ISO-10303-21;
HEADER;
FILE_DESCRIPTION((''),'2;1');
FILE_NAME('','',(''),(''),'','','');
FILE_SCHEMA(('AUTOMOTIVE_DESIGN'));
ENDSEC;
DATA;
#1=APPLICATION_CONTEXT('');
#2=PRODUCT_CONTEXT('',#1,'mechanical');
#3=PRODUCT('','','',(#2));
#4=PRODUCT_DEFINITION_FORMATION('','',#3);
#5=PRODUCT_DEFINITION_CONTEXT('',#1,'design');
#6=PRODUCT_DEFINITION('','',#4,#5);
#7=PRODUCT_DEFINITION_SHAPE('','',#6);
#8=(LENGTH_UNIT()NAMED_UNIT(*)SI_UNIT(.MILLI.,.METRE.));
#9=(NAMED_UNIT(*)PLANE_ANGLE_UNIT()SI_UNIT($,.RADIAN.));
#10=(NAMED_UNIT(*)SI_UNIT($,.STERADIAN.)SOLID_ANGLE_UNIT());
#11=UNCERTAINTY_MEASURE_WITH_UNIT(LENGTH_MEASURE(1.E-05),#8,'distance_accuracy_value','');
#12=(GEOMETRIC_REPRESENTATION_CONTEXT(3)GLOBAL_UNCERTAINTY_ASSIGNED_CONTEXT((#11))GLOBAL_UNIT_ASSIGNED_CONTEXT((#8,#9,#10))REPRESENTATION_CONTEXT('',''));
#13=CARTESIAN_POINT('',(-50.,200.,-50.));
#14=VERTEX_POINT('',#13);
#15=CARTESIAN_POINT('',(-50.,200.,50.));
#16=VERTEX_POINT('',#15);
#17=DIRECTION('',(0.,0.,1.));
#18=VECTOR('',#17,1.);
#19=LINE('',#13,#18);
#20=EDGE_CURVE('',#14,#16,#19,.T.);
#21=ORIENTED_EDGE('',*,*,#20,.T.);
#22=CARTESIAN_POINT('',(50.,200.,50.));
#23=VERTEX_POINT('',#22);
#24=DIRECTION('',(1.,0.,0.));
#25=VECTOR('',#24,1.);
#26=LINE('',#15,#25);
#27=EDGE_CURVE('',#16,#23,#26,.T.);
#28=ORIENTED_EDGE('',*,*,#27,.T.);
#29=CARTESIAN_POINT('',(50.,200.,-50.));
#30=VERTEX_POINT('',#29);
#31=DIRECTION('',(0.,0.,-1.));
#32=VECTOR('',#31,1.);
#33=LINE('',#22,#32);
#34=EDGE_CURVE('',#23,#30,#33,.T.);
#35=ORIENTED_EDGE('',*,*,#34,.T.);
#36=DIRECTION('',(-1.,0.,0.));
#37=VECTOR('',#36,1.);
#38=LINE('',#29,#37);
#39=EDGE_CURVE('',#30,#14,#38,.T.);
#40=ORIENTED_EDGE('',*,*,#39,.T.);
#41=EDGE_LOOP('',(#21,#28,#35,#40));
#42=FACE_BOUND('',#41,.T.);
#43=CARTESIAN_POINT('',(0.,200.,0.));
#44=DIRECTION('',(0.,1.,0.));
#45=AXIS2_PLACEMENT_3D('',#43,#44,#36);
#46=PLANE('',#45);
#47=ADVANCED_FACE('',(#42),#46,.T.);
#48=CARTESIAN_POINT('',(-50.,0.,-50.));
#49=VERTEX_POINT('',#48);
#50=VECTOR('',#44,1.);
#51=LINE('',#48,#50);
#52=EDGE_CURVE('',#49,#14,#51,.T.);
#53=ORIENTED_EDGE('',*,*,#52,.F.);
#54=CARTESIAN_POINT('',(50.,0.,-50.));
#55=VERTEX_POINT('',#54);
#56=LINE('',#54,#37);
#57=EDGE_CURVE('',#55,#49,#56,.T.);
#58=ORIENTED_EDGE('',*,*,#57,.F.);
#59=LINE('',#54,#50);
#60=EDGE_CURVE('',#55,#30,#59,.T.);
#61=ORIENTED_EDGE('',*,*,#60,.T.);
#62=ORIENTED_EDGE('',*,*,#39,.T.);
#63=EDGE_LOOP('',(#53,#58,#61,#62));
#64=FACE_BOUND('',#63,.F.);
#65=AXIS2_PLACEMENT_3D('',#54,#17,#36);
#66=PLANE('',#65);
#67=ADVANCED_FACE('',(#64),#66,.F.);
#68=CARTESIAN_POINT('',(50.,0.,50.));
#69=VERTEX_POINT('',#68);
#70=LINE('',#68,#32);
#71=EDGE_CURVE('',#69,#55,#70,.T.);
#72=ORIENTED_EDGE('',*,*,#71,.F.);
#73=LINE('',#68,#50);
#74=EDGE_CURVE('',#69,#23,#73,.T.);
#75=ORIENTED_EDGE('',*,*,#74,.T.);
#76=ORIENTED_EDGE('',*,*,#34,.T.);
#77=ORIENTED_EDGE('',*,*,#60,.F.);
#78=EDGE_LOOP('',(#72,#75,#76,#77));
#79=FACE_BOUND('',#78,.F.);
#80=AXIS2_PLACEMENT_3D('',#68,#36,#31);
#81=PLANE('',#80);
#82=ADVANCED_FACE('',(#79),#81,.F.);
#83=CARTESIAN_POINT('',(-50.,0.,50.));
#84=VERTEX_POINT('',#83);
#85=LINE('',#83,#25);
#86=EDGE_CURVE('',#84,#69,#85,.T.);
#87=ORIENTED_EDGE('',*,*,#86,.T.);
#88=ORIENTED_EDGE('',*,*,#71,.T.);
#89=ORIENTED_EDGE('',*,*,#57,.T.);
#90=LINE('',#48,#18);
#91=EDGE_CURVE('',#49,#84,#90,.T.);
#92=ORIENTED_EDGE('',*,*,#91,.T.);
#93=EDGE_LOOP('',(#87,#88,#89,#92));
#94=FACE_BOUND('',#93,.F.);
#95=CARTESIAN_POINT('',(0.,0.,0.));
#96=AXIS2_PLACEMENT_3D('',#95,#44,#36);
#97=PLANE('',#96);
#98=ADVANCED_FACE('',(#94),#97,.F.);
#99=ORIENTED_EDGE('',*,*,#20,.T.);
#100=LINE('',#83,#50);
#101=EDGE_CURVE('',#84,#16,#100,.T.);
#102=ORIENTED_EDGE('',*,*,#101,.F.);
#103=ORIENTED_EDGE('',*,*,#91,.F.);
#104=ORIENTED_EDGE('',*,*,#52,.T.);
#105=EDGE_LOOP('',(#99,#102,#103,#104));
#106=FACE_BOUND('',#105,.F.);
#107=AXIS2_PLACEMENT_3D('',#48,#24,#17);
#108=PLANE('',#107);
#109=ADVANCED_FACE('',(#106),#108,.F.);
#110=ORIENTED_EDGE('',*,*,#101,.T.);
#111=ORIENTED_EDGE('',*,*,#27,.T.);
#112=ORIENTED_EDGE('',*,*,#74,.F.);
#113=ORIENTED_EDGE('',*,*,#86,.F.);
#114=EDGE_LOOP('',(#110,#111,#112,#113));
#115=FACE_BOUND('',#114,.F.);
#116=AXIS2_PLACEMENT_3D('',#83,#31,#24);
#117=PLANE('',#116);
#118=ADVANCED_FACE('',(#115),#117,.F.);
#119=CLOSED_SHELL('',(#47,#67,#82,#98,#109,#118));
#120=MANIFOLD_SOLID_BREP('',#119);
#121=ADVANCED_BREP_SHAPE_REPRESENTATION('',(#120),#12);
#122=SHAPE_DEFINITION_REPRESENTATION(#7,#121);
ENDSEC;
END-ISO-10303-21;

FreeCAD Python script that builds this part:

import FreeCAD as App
import Part
import Sketcher

V = App.Vector


def add_polygon(sketch, points):
    """Adds a closed chain of lines whose ends are joined by coincident constraints."""
    first, n = sketch.GeometryCount, len(points)
    for a, b in zip(points, points[1:] + points[:1]):
        sketch.addGeometry(Part.LineSegment(App.Vector(*a, 0), App.Vector(*b, 0)), False)
    for i in range(n):
        sketch.addConstraint(Sketcher.Constraint("Coincident", first + i, 2, first + (i + 1) % n, 1))

doc = App.newDocument("Part")
body = doc.addObject("PartDesign::Body", "Body")

sketch1 = doc.addObject("Sketcher::SketchObject", "Sketch")
body.addObject(sketch1)
sketch1.AttachmentSupport = (doc.XZ_Plane, [""])
sketch1.MapMode = "FlatFace"
add_polygon(sketch1, [(50, 50), (50, -50), (-50, -50), (-50, 50)])
sketch1.addConstraint([
    Sketcher.Constraint("Vertical", 0),
    Sketcher.Constraint("Horizontal", 1),
    Sketcher.Constraint("Vertical", 2),
    Sketcher.Constraint("Horizontal", 3),
    Sketcher.Constraint("Symmetric", 0, 2, 2, 2, -1, 1),
    Sketcher.Constraint("Equal", 3, 0),
    Sketcher.Constraint("DistanceX", 1, 2, 1, 1, 100.0),
])
pad1 = doc.addObject("PartDesign::Pad", "Pad")
body.addObject(pad1)
pad1.Profile = sketch1
pad1.Length = 200
pad1.Reversed = True

doc.recompute()
